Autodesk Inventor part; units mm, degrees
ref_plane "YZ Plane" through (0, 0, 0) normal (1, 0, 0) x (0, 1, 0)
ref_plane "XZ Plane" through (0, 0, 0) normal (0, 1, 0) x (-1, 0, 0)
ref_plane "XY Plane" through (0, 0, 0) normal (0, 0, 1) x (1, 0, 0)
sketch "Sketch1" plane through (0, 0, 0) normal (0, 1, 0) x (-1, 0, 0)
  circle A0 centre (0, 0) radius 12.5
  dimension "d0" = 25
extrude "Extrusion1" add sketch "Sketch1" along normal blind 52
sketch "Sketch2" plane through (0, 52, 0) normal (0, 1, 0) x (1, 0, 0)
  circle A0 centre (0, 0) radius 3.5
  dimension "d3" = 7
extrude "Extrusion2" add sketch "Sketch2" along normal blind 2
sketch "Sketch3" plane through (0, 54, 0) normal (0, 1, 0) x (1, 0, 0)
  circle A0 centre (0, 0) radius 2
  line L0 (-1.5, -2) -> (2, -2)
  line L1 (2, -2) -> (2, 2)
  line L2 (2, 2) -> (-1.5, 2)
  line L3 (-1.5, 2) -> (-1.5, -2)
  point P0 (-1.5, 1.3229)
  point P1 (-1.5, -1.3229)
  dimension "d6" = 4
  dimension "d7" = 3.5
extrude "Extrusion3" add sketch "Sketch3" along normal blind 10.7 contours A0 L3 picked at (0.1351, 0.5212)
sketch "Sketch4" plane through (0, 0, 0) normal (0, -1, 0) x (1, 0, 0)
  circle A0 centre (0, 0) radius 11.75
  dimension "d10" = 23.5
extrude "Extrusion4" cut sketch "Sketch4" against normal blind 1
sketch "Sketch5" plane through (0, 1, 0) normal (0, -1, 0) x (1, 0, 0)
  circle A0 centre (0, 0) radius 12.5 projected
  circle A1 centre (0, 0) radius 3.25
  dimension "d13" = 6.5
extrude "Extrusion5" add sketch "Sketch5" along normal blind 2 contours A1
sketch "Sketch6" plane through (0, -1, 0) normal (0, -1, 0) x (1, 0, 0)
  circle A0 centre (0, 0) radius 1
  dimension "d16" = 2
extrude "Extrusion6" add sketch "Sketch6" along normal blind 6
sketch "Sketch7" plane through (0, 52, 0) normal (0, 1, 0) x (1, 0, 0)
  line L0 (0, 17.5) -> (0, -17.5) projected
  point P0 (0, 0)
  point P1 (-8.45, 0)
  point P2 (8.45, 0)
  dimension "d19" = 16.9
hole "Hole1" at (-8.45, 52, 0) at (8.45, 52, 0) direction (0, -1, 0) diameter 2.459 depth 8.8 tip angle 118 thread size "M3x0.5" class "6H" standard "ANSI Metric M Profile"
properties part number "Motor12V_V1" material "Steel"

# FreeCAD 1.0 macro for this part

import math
import FreeCAD as App
import Part
import Sketcher

V = App.Vector

doc = App.newDocument("Part")
params = doc.addObject("Spreadsheet::Sheet", "Params")
for row, (alias, value) in enumerate([
    ("sketch1_diameter", "25 mm"),
    ("pad1_length", "52 mm"),
    ("sketch2_diameter", "7 mm"),
    ("pad2_length", "2 mm"),
    ("sketch3_radius", "2 mm"),
    ("pad3_length", "10.7 mm"),
    ("sketch4_diameter", "23.5 mm"),
    ("pocket1_length", "1 mm"),
    ("sketch5_diameter", "6.5 mm"),
    ("pad4_length", "2 mm"),
    ("sketch6_diameter", "2 mm"),
    ("pad5_length", "6 mm"),
    ("hole_diameter", "2.459 mm"),
    ("hole_depth", "8.8 mm"),
], start=1):
    params.set(f"A{row}", alias)
    params.set(f"B{row}", "=" + value)
    params.setAlias(f"B{row}", alias)

body = doc.addObject("PartDesign::Body", "Body")

# Sketch on XZ plane
sketch1 = body.newObject("Sketcher::SketchObject", "Sketch")
sketch1.AttachmentSupport = (doc.getObject("XZ_Plane"), [""])
sketch1.MapMode = "FlatFace"
sketch1.addGeometry(Part.Circle(V(0, 0, 0), V(0, 0, 1), 12.5), False)
sketch1.addConstraint([
    Sketcher.Constraint("Coincident", 0, 3, -1, 1),
    Sketcher.Constraint("Diameter", 0, 25.0),
])
sketch1.setExpression("Constraints[1]", "Params.sketch1_diameter")
pad1 = body.newObject("PartDesign::Pad", "Pad")
pad1.Profile = sketch1
pad1.setExpression("Length", "Params.pad1_length")
pad1.Reversed = True

# Sketch on XZ plane
sketch2 = body.newObject("Sketcher::SketchObject", "Sketch001")
sketch2.AttachmentSupport = (doc.getObject("XZ_Plane"), [""])
sketch2.MapMode = "FlatFace"
sketch2.AttachmentOffset = App.Placement(V(0, 0, -52), App.Rotation())
sketch2.addGeometry(Part.Circle(V(0, 0, 0), V(0, 0, 1), 3.5), False)
sketch2.addConstraint([
    Sketcher.Constraint("Coincident", 0, 3, -1, 1),
    Sketcher.Constraint("Diameter", 0, 7.0),
])
sketch2.setExpression("Constraints[1]", "Params.sketch2_diameter")
pad2 = body.newObject("PartDesign::Pad", "Pad001")
pad2.Profile = sketch2
pad2.setExpression("Length", "Params.pad2_length")
pad2.Reversed = True

# Sketch on XZ plane
sketch3 = body.newObject("Sketcher::SketchObject", "Sketch002")
sketch3.AttachmentSupport = (doc.getObject("XZ_Plane"), [""])
sketch3.MapMode = "FlatFace"
sketch3.AttachmentOffset = App.Placement(V(0, 0, -54), App.Rotation())
sketch3.addGeometry([
    Part.ArcOfCircle(Part.Circle(V(0, 0, 0), V(0, 0, 1), 2), math.radians(-138.590378), math.radians(138.590378)),
    Part.LineSegment(V(-1.5, -1.322876, 0), V(-1.5, 1.322876, 0)),
], False)
sketch3.addConstraint([
    Sketcher.Constraint("Coincident", 0, 1, 1, 1),
    Sketcher.Constraint("Coincident", 1, 2, 0, 2),
    Sketcher.Constraint("Vertical", 1),
    Sketcher.Constraint("Coincident", 0, 3, -1, 1),
    Sketcher.Constraint("Radius", 0, 2.0),
    Sketcher.Constraint("DistanceX", 0, 1, -1, 1, 1.5),
])
sketch3.setExpression("Constraints[4]", "Params.sketch3_radius")
pad3 = body.newObject("PartDesign::Pad", "Pad002")
pad3.Profile = sketch3
pad3.setExpression("Length", "Params.pad3_length")
pad3.Reversed = True

# Sketch on XZ plane
sketch4 = body.newObject("Sketcher::SketchObject", "Sketch003")
sketch4.AttachmentSupport = (doc.getObject("XZ_Plane"), [""])
sketch4.MapMode = "FlatFace"
sketch4.addGeometry(Part.Circle(V(0, 0, 0), V(0, 0, 1), 11.75), False)
sketch4.addConstraint([
    Sketcher.Constraint("Coincident", 0, 3, -1, 1),
    Sketcher.Constraint("Diameter", 0, 23.5),
])
sketch4.setExpression("Constraints[1]", "Params.sketch4_diameter")
pocket1 = body.newObject("PartDesign::Pocket", "Pocket")
pocket1.Profile = sketch4
pocket1.setExpression("Length", "Params.pocket1_length")

# Sketch on XZ plane
sketch5 = body.newObject("Sketcher::SketchObject", "Sketch004")
sketch5.AttachmentSupport = (doc.getObject("XZ_Plane"), [""])
sketch5.MapMode = "FlatFace"
sketch5.AttachmentOffset = App.Placement(V(0, 0, -1), App.Rotation())
sketch5.addGeometry(Part.Circle(V(0, 0, 0), V(0, 0, 1), 3.25), False)
sketch5.addConstraint([
    Sketcher.Constraint("Coincident", 0, 3, -1, 1),
    Sketcher.Constraint("Diameter", 0, 6.5),
])
sketch5.setExpression("Constraints[1]", "Params.sketch5_diameter")
pad4 = body.newObject("PartDesign::Pad", "Pad003")
pad4.Profile = sketch5
pad4.setExpression("Length", "Params.pad4_length")

# Sketch on XZ plane
sketch6 = body.newObject("Sketcher::SketchObject", "Sketch005")
sketch6.AttachmentSupport = (doc.getObject("XZ_Plane"), [""])
sketch6.MapMode = "FlatFace"
sketch6.AttachmentOffset = App.Placement(V(0, 0, 1), App.Rotation())
sketch6.addGeometry(Part.Circle(V(0, 0, 0), V(0, 0, 1), 1), False)
sketch6.addConstraint([
    Sketcher.Constraint("Coincident", 0, 3, -1, 1),
    Sketcher.Constraint("Diameter", 0, 2.0),
])
sketch6.setExpression("Constraints[1]", "Params.sketch6_diameter")
pad5 = body.newObject("PartDesign::Pad", "Pad004")
pad5.Profile = sketch6
pad5.setExpression("Length", "Params.pad5_length")

# Sketch on XZ plane
sketch7 = body.newObject("Sketcher::SketchObject", "Sketch006")
sketch7.AttachmentSupport = (doc.getObject("XZ_Plane"), [""])
sketch7.MapMode = "FlatFace"
sketch7.AttachmentOffset = App.Placement(V(0, 0, -52), App.Rotation())
sketch7.addGeometry([
    Part.Circle(V(-8.45, 0, 0), V(0, 0, 1), 1.2295),
    Part.Circle(V(8.45, 0, 0), V(0, 0, 1), 1.2295),
], False)
sketch7.addConstraint([
    Sketcher.Constraint("Equal", 0, 1),
    Sketcher.Constraint("Symmetric", 0, 3, 1, 3, -1, 1),
    Sketcher.Constraint("PointOnObject", 0, 3, -1),
    Sketcher.Constraint("Diameter", 0, 2.459),
    Sketcher.Constraint("DistanceX", 0, 3, 1, 3, 16.9),
])
doc.recompute()
hole = body.newObject("PartDesign::Hole", "Hole")
hole.Profile = sketch7
hole.ThreadType = "None"
hole.setExpression("Diameter", "Params.hole_diameter")
hole.DepthType = "Dimension"
hole.setExpression("Depth", "Params.hole_depth")
hole.DrillPoint = "Angled"
hole.DrillPointAngle = 118
hole.Reversed = True

doc.recompute()
